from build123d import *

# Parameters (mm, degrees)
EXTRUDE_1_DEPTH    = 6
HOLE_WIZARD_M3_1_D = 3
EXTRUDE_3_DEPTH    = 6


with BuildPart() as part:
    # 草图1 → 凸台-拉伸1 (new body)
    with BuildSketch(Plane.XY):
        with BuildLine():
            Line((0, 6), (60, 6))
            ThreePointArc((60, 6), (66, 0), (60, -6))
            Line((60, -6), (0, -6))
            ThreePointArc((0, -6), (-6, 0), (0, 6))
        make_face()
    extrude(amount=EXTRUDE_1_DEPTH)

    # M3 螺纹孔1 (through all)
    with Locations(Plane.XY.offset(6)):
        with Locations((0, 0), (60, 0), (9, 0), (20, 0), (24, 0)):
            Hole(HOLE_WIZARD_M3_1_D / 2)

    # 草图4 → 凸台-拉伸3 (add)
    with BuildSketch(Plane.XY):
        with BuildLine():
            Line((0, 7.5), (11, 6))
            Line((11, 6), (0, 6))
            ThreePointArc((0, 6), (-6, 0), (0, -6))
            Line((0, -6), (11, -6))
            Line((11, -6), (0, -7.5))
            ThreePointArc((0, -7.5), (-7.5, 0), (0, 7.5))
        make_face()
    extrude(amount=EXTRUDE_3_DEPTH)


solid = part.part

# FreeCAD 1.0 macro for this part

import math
import FreeCAD as App
import Part
import Sketcher
from FreeCAD import Vector

doc = App.newDocument("Part")
body = doc.addObject("PartDesign::Body", "Body")

# Sketch on XY plane
sketch1 = doc.addObject("Sketcher::SketchObject", "Sketch")
body.addObject(sketch1)
sketch1.AttachmentSupport = (doc.XY_Plane, [""])
sketch1.MapMode = "FlatFace"
sketch1.addGeometry([
    Part.LineSegment(Vector(60, 6, 0), Vector(0, 6, 0)),
    Part.ArcOfCircle(Part.Circle(Vector(0, 0, 0), Vector(0, 0, 1), 6), math.radians(90), math.radians(270)),
    Part.LineSegment(Vector(0, -6, 0), Vector(60, -6, 0)),
    Part.ArcOfCircle(Part.Circle(Vector(60, 0, 0), Vector(0, 0, 1), 6), math.radians(-90), math.radians(90)),
], False)
sketch1.addConstraint([
    Sketcher.Constraint("Tangent", 0, 2, 1, 1),
    Sketcher.Constraint("Tangent", 1, 2, 2, 1),
    Sketcher.Constraint("Tangent", 2, 2, 3, 1),
    Sketcher.Constraint("Tangent", 3, 2, 0, 1),
    Sketcher.Constraint("Horizontal", 0),
    Sketcher.Constraint("Horizontal", 2),
    Sketcher.Constraint("Coincident", 1, 3, -1, 1),
    Sketcher.Constraint("Radius", 1, 6.0),
    Sketcher.Constraint("DistanceX", 0, 2, 0, 1, 60.0),
])
pad1 = doc.addObject("PartDesign::Pad", "Pad")
body.addObject(pad1)
pad1.Profile = sketch1
pad1.Length = 6

# Sketch on XY plane
sketch2 = doc.addObject("Sketcher::SketchObject", "Sketch001")
body.addObject(sketch2)
sketch2.AttachmentSupport = (doc.XY_Plane, [""])
sketch2.MapMode = "FlatFace"
sketch2.AttachmentOffset = App.Placement(Vector(0, 0, 6), App.Rotation())
sketch2.addGeometry([
    Part.Circle(Vector(0, 0, 0), Vector(0, 0, 1), 1.5),  # 0
    Part.Circle(Vector(60, 0, 0), Vector(0, 0, 1), 1.5),  # 1
    Part.Circle(Vector(9, 0, 0), Vector(0, 0, 1), 1.5),  # 2
    Part.Circle(Vector(20, 0, 0), Vector(0, 0, 1), 1.5),  # 3
    Part.Circle(Vector(24, 0, 0), Vector(0, 0, 1), 1.5),  # 4
], False)
sketch2.addConstraint([
    Sketcher.Constraint("Coincident", 0, 3, -1, 1),
    Sketcher.Constraint("Equal", 0, 1),
    Sketcher.Constraint("Equal", 1, 2),
    Sketcher.Constraint("Equal", 2, 3),
    Sketcher.Constraint("Equal", 3, 4),
    Sketcher.Constraint("PointOnObject", 1, 3, -1),
    Sketcher.Constraint("PointOnObject", 2, 3, -1),
    Sketcher.Constraint("PointOnObject", 3, 3, -1),
    Sketcher.Constraint("PointOnObject", 4, 3, -1),
    Sketcher.Constraint("Diameter", 0, 3.0),
    Sketcher.Constraint("DistanceX", -1, 1, 1, 3, 60.0),
    Sketcher.Constraint("DistanceX", -1, 1, 2, 3, 9.0),
    Sketcher.Constraint("DistanceX", -1, 1, 3, 3, 20.0),
    Sketcher.Constraint("DistanceX", -1, 1, 4, 3, 24.0),
])
doc.recompute()
hole = doc.addObject("PartDesign::Hole", "Hole")
body.addObject(hole)
hole.Profile = sketch2
hole.ThreadType = "None"
hole.Diameter = 3
hole.DepthType = "ThroughAll"

# Sketch on XY plane
sketch3 = doc.addObject("Sketcher::SketchObject", "Sketch002")
body.addObject(sketch3)
sketch3.AttachmentSupport = (doc.XY_Plane, [""])
sketch3.MapMode = "FlatFace"
sketch3.addGeometry([
    Part.LineSegment(Vector(11, 6, 0), Vector(0, 8, 0)),  # 0
    Part.ArcOfCircle(Part.Circle(Vector(0, 0, 0), Vector(0, 0, 1), 8), math.radians(90), math.radians(270)),  # 1
    Part.LineSegment(Vector(0, -8, 0), Vector(11, -6, 0)),  # 2
    Part.LineSegment(Vector(11, -6, 0), Vector(0, -6, 0)),  # 3
    Part.ArcOfCircle(Part.Circle(Vector(0, 0, 0), Vector(0, 0, 1), 6), math.radians(90), math.radians(270)),  # 4
    Part.LineSegment(Vector(0, 6, 0), Vector(11, 6, 0)),  # 5
], False)
sketch3.addConstraint([
    Sketcher.Constraint("Coincident", 0, 2, 1, 1),
    Sketcher.Constraint("Coincident", 1, 2, 2, 1),
    Sketcher.Constraint("Coincident", 2, 2, 3, 1),
    Sketcher.Constraint("Tangent", 3, 2, 4, 2),
    Sketcher.Constraint("Tangent", 4, 1, 5, 1),
    Sketcher.Constraint("Coincident", 5, 2, 0, 1),
    Sketcher.Constraint("Horizontal", 3),
    Sketcher.Constraint("Horizontal", 5),
    Sketcher.Constraint("Coincident", 1, 3, -1, 1),
    Sketcher.Constraint("Coincident", 4, 3, -1, 1),
    Sketcher.Constraint("PointOnObject", 0, 2, -2),
    Sketcher.Constraint("PointOnObject", 1, 2, -2),
    Sketcher.Constraint("Vertical", 2, 2, 5, 2),
    Sketcher.Constraint("Radius", 4, 6.0),
    Sketcher.Constraint("Radius", 1, 7.5),
    Sketcher.Constraint("DistanceX", 3, 2, 3, 1, 11.0),
])
pad2 = doc.addObject("PartDesign::Pad", "Pad001")
body.addObject(pad2)
pad2.Profile = sketch3
pad2.Length = 6

doc.recompute()
